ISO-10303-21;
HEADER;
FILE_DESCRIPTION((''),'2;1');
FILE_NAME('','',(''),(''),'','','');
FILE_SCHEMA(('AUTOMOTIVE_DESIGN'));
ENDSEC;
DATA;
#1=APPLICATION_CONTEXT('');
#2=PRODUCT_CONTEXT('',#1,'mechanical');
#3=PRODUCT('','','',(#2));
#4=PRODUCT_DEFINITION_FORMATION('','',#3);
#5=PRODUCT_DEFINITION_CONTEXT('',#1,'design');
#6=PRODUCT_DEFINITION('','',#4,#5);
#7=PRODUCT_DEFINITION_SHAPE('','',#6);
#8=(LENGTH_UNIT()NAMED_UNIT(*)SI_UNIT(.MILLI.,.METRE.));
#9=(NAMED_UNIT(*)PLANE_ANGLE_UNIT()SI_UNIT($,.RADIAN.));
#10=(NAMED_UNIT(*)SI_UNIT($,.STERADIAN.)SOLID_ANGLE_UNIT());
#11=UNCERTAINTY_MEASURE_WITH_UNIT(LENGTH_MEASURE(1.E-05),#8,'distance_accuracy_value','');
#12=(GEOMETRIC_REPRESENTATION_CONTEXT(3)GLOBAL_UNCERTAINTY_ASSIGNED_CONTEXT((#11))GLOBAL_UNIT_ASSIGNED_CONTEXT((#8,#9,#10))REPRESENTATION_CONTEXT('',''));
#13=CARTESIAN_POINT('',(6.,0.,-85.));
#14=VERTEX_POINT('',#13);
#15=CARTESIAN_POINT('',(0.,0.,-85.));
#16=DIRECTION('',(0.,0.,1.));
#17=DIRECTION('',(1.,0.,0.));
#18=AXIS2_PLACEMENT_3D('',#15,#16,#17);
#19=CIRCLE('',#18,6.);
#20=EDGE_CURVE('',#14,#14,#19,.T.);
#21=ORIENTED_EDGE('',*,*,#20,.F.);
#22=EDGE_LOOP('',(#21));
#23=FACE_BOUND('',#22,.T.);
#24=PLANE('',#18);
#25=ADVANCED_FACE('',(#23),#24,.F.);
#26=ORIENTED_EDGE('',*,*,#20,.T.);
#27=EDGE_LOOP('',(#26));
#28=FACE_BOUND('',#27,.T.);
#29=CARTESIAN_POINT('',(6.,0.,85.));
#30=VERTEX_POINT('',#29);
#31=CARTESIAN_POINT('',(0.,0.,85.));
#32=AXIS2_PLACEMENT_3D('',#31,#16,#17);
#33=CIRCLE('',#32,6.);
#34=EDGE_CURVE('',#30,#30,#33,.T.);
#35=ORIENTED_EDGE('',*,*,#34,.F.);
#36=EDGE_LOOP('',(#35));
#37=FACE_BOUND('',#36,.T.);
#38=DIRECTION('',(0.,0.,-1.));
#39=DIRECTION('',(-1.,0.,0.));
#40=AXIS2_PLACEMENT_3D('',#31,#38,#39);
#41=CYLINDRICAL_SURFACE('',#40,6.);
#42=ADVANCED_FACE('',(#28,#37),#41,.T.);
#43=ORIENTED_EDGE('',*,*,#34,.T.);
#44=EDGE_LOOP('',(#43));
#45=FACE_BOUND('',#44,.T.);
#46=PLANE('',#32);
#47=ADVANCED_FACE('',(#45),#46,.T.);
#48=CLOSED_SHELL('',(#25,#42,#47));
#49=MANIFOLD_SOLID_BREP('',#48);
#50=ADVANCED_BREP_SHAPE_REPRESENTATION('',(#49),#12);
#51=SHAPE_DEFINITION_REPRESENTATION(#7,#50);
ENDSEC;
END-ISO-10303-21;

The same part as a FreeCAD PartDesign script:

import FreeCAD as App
import Part
import Sketcher
from FreeCAD import Vector
Q = App.Units.Quantity

doc = App.newDocument("Part")
body = doc.addObject("PartDesign::Body", "Body")

# Sketch on XY plane
sketch1 = body.newObject("Sketcher::SketchObject", "Sketch")
sketch1.AttachmentSupport = (doc.getObject("XY_Plane"), [""])
sketch1.MapMode = "FlatFace"
sketch1.addGeometry(Part.Circle(Vector(0, 0, 0), Vector(0, 0, 1), 6), False)
sketch1.addConstraint([
    Sketcher.Constraint("Coincident", 0, 3, -1, 1),
    Sketcher.Constraint("Diameter", 0, Q("12 mm")),
])
pad1 = body.newObject("PartDesign::Pad", "Pad")
pad1.Profile = sketch1
pad1.Length = 170
pad1.Midplane = True

doc.recompute()
